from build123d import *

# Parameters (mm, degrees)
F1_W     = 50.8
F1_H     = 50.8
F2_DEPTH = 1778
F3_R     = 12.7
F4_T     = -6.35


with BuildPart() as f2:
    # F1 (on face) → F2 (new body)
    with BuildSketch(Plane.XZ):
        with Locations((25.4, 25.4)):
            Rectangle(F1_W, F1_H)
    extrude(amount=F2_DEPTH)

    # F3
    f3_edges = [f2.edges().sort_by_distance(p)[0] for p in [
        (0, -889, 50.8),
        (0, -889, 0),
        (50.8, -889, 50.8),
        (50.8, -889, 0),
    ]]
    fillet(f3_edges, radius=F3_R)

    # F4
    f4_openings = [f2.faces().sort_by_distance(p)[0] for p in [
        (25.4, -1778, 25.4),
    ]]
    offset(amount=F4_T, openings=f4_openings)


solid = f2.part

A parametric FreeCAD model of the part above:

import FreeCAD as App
import Part
import Sketcher

V = App.Vector
Q = App.Units.Quantity


def edges_at(feature, points):
    """Names of the edges that pass closest to the given points."""
    edges = feature.Shape.Edges
    near = lambda p: min(range(len(edges)), key=lambda i: edges[i].distToShape(Part.Vertex(*p))[0])
    return sorted({f"Edge{near(p) + 1}" for p in points})


def faces_at(feature, points):
    """Names of the faces that lie closest to the given points."""
    faces = feature.Shape.Faces
    near = lambda p: min(range(len(faces)), key=lambda i: faces[i].distToShape(Part.Vertex(*p))[0])
    return sorted({f"Face{near(p) + 1}" for p in points})


def add_polygon(sketch, points):
    """Adds a closed chain of lines whose ends are joined by coincident constraints."""
    first, n = sketch.GeometryCount, len(points)
    for a, b in zip(points, points[1:] + points[:1]):
        sketch.addGeometry(Part.LineSegment(App.Vector(*a, 0), App.Vector(*b, 0)), False)
    for i in range(n):
        sketch.addConstraint(Sketcher.Constraint("Coincident", first + i, 2, first + (i + 1) % n, 1))

doc = App.newDocument("Part")
params = doc.addObject("Spreadsheet::Sheet", "Params")
for row, (alias, value) in enumerate([
    ("sketch1_width", "2 in"),
    ("pad1_length", "70 in"),
    ("fillet_radius", "0.5 in"),
    ("thickness_wall", "0.25 in"),
], start=1):
    params.set(f"A{row}", alias)
    params.set(f"B{row}", "=" + value)
    params.setAlias(f"B{row}", alias)

body = doc.addObject("PartDesign::Body", "Body")

sketch1 = body.newObject("Sketcher::SketchObject", "Sketch")
sketch1.AttachmentSupport = (doc.getObject("XZ_Plane"), [""])
sketch1.MapMode = "FlatFace"
add_polygon(sketch1, [(0, 51), (0, 0), (51, 0), (51, 51)])
sketch1.addConstraint(Sketcher.Constraint("Vertical", 0))
sketch1.addConstraint(Sketcher.Constraint("Horizontal", 1))
sketch1.addConstraint(Sketcher.Constraint("Vertical", 2))
sketch1.addConstraint(Sketcher.Constraint("Horizontal", 3))
sketch1.addConstraint(Sketcher.Constraint("Coincident", 0, 2, -1, 1))
sketch1.addConstraint(Sketcher.Constraint("Equal", 3, 0))
sketch1.addConstraint(Sketcher.Constraint("DistanceX", 1, 1, 1, 2, Q("2 in")))
sketch1.setExpression("Constraints[10]", "Params.sketch1_width")
pad1 = body.newObject("PartDesign::Pad", "Pad")
pad1.Profile = sketch1
pad1.setExpression("Length", "Params.pad1_length")
doc.recompute()

fillet = body.newObject("PartDesign::Fillet", "Fillet")
fillet.Base = (pad1, edges_at(pad1, [
    (0, -889, 50.8),
    (0, -889, 0),
    (50.8, -889, 50.8),
    (50.8, -889, 0),
]))
fillet.setExpression("Radius", "Params.fillet_radius")
doc.recompute()

thickness = body.newObject("PartDesign::Thickness", "Thickness")
thickness.Base = (fillet, faces_at(fillet, [(25.4, -1778, 25.4)]))
thickness.setExpression("Value", "Params.thickness_wall")
thickness.Reversed = True
thickness.Join = "Arc"

doc.recompute()
